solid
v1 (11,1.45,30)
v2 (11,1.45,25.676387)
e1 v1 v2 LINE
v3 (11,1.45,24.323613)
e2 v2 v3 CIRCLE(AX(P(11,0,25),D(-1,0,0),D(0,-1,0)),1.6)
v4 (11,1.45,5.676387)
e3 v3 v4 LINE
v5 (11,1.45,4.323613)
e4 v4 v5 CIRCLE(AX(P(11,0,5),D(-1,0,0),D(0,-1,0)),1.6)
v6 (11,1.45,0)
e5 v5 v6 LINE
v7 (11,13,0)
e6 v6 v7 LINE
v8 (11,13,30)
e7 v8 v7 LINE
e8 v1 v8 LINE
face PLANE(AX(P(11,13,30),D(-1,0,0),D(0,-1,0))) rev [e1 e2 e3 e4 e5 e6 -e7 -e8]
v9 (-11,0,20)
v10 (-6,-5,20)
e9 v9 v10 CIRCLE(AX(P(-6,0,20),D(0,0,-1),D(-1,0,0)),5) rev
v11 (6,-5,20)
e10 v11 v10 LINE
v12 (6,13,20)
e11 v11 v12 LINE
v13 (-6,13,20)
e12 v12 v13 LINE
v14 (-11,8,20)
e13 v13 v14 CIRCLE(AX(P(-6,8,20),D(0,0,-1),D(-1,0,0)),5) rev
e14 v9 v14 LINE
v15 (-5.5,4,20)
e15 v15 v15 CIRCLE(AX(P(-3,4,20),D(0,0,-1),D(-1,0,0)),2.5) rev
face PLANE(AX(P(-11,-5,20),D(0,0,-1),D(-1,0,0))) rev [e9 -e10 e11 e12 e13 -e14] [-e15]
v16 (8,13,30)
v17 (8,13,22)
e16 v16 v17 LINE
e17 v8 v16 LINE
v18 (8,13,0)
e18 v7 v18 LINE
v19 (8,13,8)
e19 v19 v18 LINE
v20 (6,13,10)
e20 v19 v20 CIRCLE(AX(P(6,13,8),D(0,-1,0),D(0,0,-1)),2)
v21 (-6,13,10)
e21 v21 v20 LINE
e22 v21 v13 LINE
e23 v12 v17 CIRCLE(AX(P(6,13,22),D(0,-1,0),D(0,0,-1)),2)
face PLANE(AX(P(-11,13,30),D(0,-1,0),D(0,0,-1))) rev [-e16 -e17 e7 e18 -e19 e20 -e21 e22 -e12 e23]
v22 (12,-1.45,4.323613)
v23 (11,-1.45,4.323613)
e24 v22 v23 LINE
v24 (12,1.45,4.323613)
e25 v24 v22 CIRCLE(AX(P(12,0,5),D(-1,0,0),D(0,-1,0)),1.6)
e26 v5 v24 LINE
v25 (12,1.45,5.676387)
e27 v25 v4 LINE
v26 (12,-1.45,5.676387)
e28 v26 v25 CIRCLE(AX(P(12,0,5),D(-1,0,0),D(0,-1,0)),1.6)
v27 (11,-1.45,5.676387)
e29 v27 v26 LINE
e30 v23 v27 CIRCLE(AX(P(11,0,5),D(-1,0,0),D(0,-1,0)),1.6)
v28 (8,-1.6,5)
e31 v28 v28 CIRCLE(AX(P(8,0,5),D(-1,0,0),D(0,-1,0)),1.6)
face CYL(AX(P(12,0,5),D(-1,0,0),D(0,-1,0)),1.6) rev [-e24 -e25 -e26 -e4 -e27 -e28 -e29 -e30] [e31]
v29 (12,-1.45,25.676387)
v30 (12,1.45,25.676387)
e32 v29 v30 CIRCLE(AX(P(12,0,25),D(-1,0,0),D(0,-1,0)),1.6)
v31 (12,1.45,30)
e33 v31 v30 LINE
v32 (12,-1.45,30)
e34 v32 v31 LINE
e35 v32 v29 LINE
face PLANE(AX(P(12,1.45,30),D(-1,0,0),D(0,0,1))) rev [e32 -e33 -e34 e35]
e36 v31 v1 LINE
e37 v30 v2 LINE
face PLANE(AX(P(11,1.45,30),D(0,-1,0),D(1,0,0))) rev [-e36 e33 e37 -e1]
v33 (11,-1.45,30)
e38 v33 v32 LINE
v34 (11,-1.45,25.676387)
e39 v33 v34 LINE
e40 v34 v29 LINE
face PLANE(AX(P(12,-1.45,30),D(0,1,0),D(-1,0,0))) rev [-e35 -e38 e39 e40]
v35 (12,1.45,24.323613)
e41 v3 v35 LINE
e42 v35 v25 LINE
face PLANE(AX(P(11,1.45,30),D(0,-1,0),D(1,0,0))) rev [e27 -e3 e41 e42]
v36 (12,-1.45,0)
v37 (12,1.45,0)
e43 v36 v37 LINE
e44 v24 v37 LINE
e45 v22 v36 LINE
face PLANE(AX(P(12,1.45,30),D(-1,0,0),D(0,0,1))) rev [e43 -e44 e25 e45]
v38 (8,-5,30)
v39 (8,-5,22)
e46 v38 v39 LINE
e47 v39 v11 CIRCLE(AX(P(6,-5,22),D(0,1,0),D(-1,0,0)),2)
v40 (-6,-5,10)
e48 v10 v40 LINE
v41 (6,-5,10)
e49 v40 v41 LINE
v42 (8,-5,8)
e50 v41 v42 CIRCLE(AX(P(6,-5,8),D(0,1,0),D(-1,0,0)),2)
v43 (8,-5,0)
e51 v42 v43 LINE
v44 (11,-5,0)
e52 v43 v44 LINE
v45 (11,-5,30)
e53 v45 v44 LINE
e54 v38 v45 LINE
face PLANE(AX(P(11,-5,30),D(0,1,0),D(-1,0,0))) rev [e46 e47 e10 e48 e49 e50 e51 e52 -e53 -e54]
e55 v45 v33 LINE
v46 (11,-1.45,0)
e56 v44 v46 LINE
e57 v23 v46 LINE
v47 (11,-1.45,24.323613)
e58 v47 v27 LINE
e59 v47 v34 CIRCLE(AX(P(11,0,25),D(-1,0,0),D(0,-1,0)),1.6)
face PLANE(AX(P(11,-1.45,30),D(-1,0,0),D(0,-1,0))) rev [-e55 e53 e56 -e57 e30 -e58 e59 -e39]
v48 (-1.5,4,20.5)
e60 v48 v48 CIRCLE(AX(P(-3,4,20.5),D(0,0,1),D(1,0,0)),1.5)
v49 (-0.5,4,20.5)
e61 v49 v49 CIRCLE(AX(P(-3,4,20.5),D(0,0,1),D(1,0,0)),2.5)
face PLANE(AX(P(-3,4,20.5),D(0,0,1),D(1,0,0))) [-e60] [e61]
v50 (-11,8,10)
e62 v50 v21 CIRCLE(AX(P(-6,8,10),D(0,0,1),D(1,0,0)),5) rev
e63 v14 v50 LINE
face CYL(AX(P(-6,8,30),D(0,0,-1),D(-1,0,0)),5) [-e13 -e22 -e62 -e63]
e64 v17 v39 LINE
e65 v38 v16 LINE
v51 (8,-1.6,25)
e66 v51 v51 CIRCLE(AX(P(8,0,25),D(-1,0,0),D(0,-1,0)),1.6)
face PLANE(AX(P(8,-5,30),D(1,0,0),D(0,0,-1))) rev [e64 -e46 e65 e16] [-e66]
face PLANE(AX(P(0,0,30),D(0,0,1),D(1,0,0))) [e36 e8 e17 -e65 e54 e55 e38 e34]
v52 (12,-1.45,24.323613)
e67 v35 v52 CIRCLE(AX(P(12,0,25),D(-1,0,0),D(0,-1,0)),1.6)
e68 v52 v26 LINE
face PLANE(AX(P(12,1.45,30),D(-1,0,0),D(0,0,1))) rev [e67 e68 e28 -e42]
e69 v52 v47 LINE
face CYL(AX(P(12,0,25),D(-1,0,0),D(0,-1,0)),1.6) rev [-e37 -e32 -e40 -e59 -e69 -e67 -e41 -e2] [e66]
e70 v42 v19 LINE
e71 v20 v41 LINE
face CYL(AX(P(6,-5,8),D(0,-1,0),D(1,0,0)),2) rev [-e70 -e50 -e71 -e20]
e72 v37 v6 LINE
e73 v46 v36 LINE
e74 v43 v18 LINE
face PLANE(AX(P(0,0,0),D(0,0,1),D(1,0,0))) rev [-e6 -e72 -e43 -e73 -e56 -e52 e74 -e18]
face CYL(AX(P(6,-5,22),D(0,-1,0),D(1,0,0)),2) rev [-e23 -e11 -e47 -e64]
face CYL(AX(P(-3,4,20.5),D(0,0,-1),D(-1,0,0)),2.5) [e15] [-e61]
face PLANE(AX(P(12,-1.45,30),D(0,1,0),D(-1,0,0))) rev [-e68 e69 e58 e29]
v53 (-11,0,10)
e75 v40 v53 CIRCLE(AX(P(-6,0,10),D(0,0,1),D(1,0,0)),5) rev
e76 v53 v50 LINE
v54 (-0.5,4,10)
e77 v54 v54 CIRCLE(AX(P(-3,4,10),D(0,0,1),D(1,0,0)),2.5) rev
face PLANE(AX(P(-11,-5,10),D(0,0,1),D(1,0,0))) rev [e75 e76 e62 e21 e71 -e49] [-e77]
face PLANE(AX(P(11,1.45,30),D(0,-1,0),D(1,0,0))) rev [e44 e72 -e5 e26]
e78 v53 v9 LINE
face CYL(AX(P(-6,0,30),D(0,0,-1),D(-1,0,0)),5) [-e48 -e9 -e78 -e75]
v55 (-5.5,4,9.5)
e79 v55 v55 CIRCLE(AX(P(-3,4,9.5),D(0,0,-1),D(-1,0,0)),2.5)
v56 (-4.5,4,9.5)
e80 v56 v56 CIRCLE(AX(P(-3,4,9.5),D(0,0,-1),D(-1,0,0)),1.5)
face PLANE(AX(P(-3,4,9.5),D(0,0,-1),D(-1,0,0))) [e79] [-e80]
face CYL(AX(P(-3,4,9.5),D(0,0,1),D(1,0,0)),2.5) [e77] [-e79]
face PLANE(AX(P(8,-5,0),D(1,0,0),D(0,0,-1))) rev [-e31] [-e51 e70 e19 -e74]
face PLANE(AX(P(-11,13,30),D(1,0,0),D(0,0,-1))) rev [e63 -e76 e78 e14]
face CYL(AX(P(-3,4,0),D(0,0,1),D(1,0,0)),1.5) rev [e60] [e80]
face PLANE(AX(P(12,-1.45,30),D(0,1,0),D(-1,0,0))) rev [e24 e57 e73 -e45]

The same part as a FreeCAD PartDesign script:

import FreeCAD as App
import Part
import Sketcher

V = App.Vector


def edges_at(feature, points):
    """Names of the edges that pass closest to the given points."""
    edges = feature.Shape.Edges
    near = lambda p: min(range(len(edges)), key=lambda i: edges[i].distToShape(Part.Vertex(*p))[0])
    return sorted({f"Edge{near(p) + 1}" for p in points})

doc = App.newDocument("Part")
body = doc.addObject("PartDesign::Body", "Body")

sketch1 = body.newObject("Sketcher::SketchObject", "Sketch")
sketch1.AttachmentSupport = (doc.getObject("XY_Plane"), [""])
sketch1.MapMode = "FlatFace"
sketch1.addGeometry([
    Part.LineSegment(V(-11, 13, 0), V(-11, -5, 0)),
    Part.LineSegment(V(-11, -5, 0), V(11, -5, 0)),
    Part.LineSegment(V(11, -5, 0), V(11, -1.4, 0)),
    Part.LineSegment(V(11, -1.4, 0), V(12, -1.4, 0)),
    Part.LineSegment(V(12, -1.4, 0), V(12, 1.4, 0)),
    Part.LineSegment(V(12, 1.4, 0), V(11, 1.4, 0)),
    Part.LineSegment(V(11, 1.4, 0), V(11, 13, 0)),
    Part.LineSegment(V(11, 13, 0), V(-11, 13, 0)),
], False)
sketch1.addConstraint([
    Sketcher.Constraint("Coincident", 0, 2, 1, 1),
    Sketcher.Constraint("Coincident", 1, 2, 2, 1),
    Sketcher.Constraint("Coincident", 2, 2, 3, 1),
    Sketcher.Constraint("Coincident", 3, 2, 4, 1),
    Sketcher.Constraint("Coincident", 4, 2, 5, 1),
    Sketcher.Constraint("Coincident", 5, 2, 6, 1),
    Sketcher.Constraint("Coincident", 6, 2, 7, 1),
    Sketcher.Constraint("Coincident", 7, 2, 0, 1),
    Sketcher.Constraint("Vertical", 0),
    Sketcher.Constraint("Horizontal", 1),
    Sketcher.Constraint("Vertical", 2),
    Sketcher.Constraint("Horizontal", 3),
    Sketcher.Constraint("Vertical", 4),
    Sketcher.Constraint("Horizontal", 5),
    Sketcher.Constraint("Vertical", 6),
    Sketcher.Constraint("Horizontal", 7),
    Sketcher.Constraint("Symmetric", 2, 2, 5, 2, -1),
    Sketcher.Constraint("DistanceX", 1, 1, 1, 2, 22.0),
    Sketcher.Constraint("DistanceX", 3, 1, 3, 2, 1.0),
    Sketcher.Constraint("DistanceY", 0, 2, 0, 1, 18.0),
    Sketcher.Constraint("DistanceY", 4, 1, 4, 2, 2.9),
    Sketcher.Constraint("DistanceX", 0, 2, -1, 1, 11.0),
    Sketcher.Constraint("DistanceY", 0, 2, -1, 1, 5.0),
])
pad1 = body.newObject("PartDesign::Pad", "Pad")
pad1.Profile = sketch1
pad1.Length = 30

sketch2 = body.newObject("Sketcher::SketchObject", "Sketch001")
sketch2.AttachmentSupport = (doc.getObject("XZ_Plane"), [""])
sketch2.MapMode = "FlatFace"
sketch2.AttachmentOffset = App.Placement(V(0, 0, -13), App.Rotation())
sketch2.addGeometry([
    Part.LineSegment(V(-11, 0, 0), V(-11, 10, 0)),
    Part.LineSegment(V(-11, 10, 0), V(8, 10, 0)),
    Part.LineSegment(V(8, 10, 0), V(8, 0, 0)),
    Part.LineSegment(V(8, 0, 0), V(-11, 0, 0)),
    Part.LineSegment(V(-11, 20, 0), V(-11, 30, 0)),
    Part.LineSegment(V(-11, 30, 0), V(8, 30, 0)),
    Part.LineSegment(V(8, 30, 0), V(8, 20, 0)),
    Part.LineSegment(V(8, 20, 0), V(-11, 20, 0)),
], False)
sketch2.addConstraint([
    Sketcher.Constraint("Coincident", 0, 2, 1, 1),
    Sketcher.Constraint("Coincident", 1, 2, 2, 1),
    Sketcher.Constraint("Coincident", 2, 2, 3, 1),
    Sketcher.Constraint("Coincident", 3, 2, 0, 1),
    Sketcher.Constraint("Coincident", 4, 2, 5, 1),
    Sketcher.Constraint("Coincident", 5, 2, 6, 1),
    Sketcher.Constraint("Coincident", 6, 2, 7, 1),
    Sketcher.Constraint("Coincident", 7, 2, 4, 1),
    Sketcher.Constraint("Vertical", 0),
    Sketcher.Constraint("Horizontal", 1),
    Sketcher.Constraint("Vertical", 2),
    Sketcher.Constraint("Horizontal", 3),
    Sketcher.Constraint("Vertical", 4),
    Sketcher.Constraint("Horizontal", 5),
    Sketcher.Constraint("Vertical", 6),
    Sketcher.Constraint("Horizontal", 7),
    Sketcher.Constraint("PointOnObject", 2, 2, -1),
    Sketcher.Constraint("Vertical", 3, 2, 4, 2),
    Sketcher.Constraint("Vertical", 2, 2, 5, 2),
    Sketcher.Constraint("Equal", 2, 4),
    Sketcher.Constraint("DistanceX", 1, 1, 1, 2, 19.0),
    Sketcher.Constraint("DistanceY", 0, 1, 0, 2, 10.0),
    Sketcher.Constraint("DistanceX", 0, 2, -1, 1, 11.0),
    Sketcher.Constraint("DistanceY", -1, 1, 4, 2, 30.0),
])
pocket1 = body.newObject("PartDesign::Pocket", "Pocket")
pocket1.Profile = sketch2
pocket1.Type = "ThroughAll"
pocket1.Reversed = True

sketch3 = body.newObject("Sketcher::SketchObject", "Sketch002")
sketch3.AttachmentSupport = (doc.getObject("YZ_Plane"), [""])
sketch3.MapMode = "FlatFace"
sketch3.AttachmentOffset = App.Placement(V(0, 0, 8), App.Rotation())
sketch3.addGeometry([
    Part.Circle(V(0, 5, 0), V(0, 0, 1), 1.6),
    Part.Circle(V(0, 25, 0), V(0, 0, 1), 1.6),
], False)
sketch3.addConstraint([
    Sketcher.Constraint("Equal", 0, 1),
    Sketcher.Constraint("PointOnObject", 0, 3, -2),
    Sketcher.Constraint("PointOnObject", 1, 3, -2),
    Sketcher.Constraint("Diameter", 0, 3.2),
    Sketcher.Constraint("DistanceY", -1, 1, 0, 3, 5.0),
    Sketcher.Constraint("DistanceY", -1, 1, 1, 3, 25.0),
])
pocket2 = body.newObject("PartDesign::Pocket", "Pocket001")
pocket2.Profile = sketch3
pocket2.Type = "ThroughAll"
pocket2.Reversed = True

sketch4 = body.newObject("Sketcher::SketchObject", "Sketch003")
sketch4.AttachmentSupport = (doc.getObject("XY_Plane"), [""])
sketch4.MapMode = "FlatFace"
sketch4.AttachmentOffset = App.Placement(V(0, 0, 20), App.Rotation())
sketch4.addGeometry(Part.Circle(V(-3, 4, 0), V(0, 0, 1), 1.5), False)
sketch4.addConstraint([
    Sketcher.Constraint("Diameter", 0, 3.0),
    Sketcher.Constraint("DistanceX", 0, 3, -1, 1, 3.0),
    Sketcher.Constraint("DistanceY", -1, 1, 0, 3, 4.0),
])
pocket3 = body.newObject("PartDesign::Pocket", "Pocket002")
pocket3.Profile = sketch4
pocket3.Type = "ThroughAll"
doc.recompute()

fillet = body.newObject("PartDesign::Fillet", "Fillet")
fillet.Base = (pocket3, edges_at(pocket3, [(8, 4, 10), (8, 4, 20)]))
fillet.Radius = 2
doc.recompute()

fillet2 = body.newObject("PartDesign::Fillet", "Fillet001")
fillet2.Base = (fillet, edges_at(fillet, [(-11, 13, 15), (-11, -5, 15)]))
fillet2.Radius = 5

sketch5 = body.newObject("Sketcher::SketchObject", "Sketch004")
sketch5.AttachmentSupport = (doc.getObject("XY_Plane"), [""])
sketch5.MapMode = "FlatFace"
sketch5.AttachmentOffset = App.Placement(V(0, 0, 10), App.Rotation())
sketch5.addGeometry([
    Part.Circle(V(-3, 4, 0), V(0, 0, 1), 2.5),
    Part.Circle(V(-3, 4, 0), V(0, 0, 1), 1.5),
], False)
sketch5.addConstraint([
    Sketcher.Constraint("Coincident", 1, 3, 0, 3),
    Sketcher.Constraint("Diameter", 0, 5.0),
    Sketcher.Constraint("Diameter", 1, 3.0),
    Sketcher.Constraint("DistanceX", 0, 3, -1, 1, 3.0),
    Sketcher.Constraint("DistanceY", -1, 1, 0, 3, 4.0),
])
pad2 = body.newObject("PartDesign::Pad", "Pad001")
pad2.Profile = sketch5
pad2.Length = 0.5
pad2.Reversed = True

sketch6 = body.newObject("Sketcher::SketchObject", "Sketch005")
sketch6.AttachmentSupport = (doc.getObject("XY_Plane"), [""])
sketch6.MapMode = "FlatFace"
sketch6.AttachmentOffset = App.Placement(V(0, 0, 20), App.Rotation())
sketch6.addGeometry([
    Part.Circle(V(-3, 4, 0), V(0, 0, 1), 2.5),
    Part.Circle(V(-3, 4, 0), V(0, 0, 1), 1.5),
], False)
sketch6.addConstraint([
    Sketcher.Constraint("Coincident", 1, 3, 0, 3),
    Sketcher.Constraint("Diameter", 0, 5.0),
    Sketcher.Constraint("Diameter", 1, 3.0),
    Sketcher.Constraint("DistanceX", 0, 3, -1, 1, 3.0),
    Sketcher.Constraint("DistanceY", -1, 1, 0, 3, 4.0),
])
pad3 = body.newObject("PartDesign::Pad", "Pad002")
pad3.Profile = sketch6
pad3.Length = 0.5

doc.recompute()
